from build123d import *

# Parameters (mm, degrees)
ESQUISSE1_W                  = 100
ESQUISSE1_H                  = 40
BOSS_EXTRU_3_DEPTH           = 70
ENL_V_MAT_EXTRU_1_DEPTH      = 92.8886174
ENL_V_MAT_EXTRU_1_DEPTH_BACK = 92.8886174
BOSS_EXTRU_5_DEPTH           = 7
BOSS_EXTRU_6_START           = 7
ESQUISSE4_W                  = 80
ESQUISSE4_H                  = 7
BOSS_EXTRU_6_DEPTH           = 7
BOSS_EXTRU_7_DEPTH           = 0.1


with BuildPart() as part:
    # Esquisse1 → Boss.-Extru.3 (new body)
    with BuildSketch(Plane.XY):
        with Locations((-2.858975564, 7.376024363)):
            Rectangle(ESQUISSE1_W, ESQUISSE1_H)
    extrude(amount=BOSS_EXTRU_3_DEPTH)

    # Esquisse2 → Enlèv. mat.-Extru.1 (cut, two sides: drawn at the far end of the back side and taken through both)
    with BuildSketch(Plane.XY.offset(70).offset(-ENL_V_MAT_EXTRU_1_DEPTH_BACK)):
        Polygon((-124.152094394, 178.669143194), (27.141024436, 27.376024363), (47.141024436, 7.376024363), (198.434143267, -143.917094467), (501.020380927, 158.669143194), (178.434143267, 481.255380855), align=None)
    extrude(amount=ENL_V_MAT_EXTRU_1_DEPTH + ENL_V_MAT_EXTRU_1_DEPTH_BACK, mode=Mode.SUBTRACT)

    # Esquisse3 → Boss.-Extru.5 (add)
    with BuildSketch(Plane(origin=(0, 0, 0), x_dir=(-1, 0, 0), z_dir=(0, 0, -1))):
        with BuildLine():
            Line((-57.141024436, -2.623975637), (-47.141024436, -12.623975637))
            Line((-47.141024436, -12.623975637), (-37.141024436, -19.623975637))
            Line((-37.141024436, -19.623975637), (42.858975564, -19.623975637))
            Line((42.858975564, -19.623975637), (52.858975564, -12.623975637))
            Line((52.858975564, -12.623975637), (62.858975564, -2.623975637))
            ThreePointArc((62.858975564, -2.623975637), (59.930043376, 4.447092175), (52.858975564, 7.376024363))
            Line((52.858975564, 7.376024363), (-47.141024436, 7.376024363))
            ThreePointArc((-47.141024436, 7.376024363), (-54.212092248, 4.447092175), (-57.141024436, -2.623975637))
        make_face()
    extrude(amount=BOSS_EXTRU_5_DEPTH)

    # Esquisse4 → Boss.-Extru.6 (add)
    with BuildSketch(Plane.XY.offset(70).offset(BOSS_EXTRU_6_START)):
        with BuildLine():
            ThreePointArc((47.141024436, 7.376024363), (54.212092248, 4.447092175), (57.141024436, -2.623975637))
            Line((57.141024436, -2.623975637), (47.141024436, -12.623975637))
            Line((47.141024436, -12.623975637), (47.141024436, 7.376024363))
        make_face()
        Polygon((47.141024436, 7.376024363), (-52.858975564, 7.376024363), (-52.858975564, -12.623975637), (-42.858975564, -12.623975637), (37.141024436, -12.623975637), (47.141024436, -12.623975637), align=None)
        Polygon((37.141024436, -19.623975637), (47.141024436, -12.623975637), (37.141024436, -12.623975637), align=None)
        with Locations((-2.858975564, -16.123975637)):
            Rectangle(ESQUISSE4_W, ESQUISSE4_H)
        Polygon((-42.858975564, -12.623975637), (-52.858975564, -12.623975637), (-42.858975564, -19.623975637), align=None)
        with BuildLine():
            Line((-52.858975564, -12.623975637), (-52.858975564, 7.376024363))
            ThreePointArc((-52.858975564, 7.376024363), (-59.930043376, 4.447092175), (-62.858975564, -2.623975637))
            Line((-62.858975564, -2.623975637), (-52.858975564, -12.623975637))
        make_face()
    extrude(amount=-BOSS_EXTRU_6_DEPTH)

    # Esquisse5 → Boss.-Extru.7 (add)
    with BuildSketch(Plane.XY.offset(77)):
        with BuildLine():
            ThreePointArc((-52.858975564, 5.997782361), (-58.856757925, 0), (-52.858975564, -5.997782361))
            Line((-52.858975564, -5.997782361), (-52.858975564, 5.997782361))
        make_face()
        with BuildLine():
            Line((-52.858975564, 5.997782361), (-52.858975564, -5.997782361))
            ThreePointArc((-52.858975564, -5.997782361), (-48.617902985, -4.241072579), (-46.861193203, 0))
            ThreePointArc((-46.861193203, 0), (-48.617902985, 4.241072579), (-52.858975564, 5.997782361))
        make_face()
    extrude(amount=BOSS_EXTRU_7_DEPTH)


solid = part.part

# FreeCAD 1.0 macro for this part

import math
import FreeCAD as App
import Part
import Sketcher

V = App.Vector
Q = App.Units.Quantity

doc = App.newDocument("Part")
body = doc.addObject("PartDesign::Body", "Body")

sketch1 = body.newObject("Sketcher::SketchObject", "Sketch")
sketch1.AttachmentSupport = (doc.getObject("XY_Plane"), [""])
sketch1.MapMode = "FlatFace"
sketch1.addGeometry([
    Part.LineSegment(V(-53, 27, 0), V(-53, -13, 0)),
    Part.LineSegment(V(-53, -13, 0), V(47, -13, 0)),
    Part.LineSegment(V(47, -13, 0), V(47, 27, 0)),
    Part.LineSegment(V(47, 27, 0), V(-53, 27, 0)),
], False)
sketch1.addConstraint([
    Sketcher.Constraint("Coincident", 0, 2, 1, 1),
    Sketcher.Constraint("Coincident", 1, 2, 2, 1),
    Sketcher.Constraint("Coincident", 2, 2, 3, 1),
    Sketcher.Constraint("Coincident", 3, 2, 0, 1),
    Sketcher.Constraint("Vertical", 0),
    Sketcher.Constraint("Horizontal", 1),
    Sketcher.Constraint("Vertical", 2),
    Sketcher.Constraint("Horizontal", 3),
    Sketcher.Constraint("DistanceX", 1, 1, 1, 2, 100.0),
    Sketcher.Constraint("DistanceY", 0, 2, 0, 1, 40.0),
    Sketcher.Constraint("DistanceX", 0, 2, -1, 1, 52.858976),
    Sketcher.Constraint("DistanceY", 0, 2, -1, 1, 12.623976),
])
pad1 = body.newObject("PartDesign::Pad", "Pad")
pad1.Profile = sketch1
pad1.Length = 70

sketch2 = body.newObject("Sketcher::SketchObject", "Sketch001")
sketch2.AttachmentSupport = (doc.getObject("XY_Plane"), [""])
sketch2.MapMode = "FlatFace"
sketch2.AttachmentOffset = App.Placement(V(0, 0, 70), App.Rotation())
sketch2.addGeometry([
    Part.LineSegment(V(-124, 179, 0), V(27, 27, 0)),
    Part.LineSegment(V(27, 27, 0), V(47, 7, 0)),
    Part.LineSegment(V(47, 7, 0), V(198, -144, 0)),
    Part.LineSegment(V(198, -144, 0), V(501, 159, 0)),
    Part.LineSegment(V(501, 159, 0), V(178, 481, 0)),
    Part.LineSegment(V(178, 481, 0), V(-124, 179, 0)),
], False)
sketch2.addConstraint([
    Sketcher.Constraint("Coincident", 0, 2, 1, 1),
    Sketcher.Constraint("Coincident", 1, 2, 2, 1),
    Sketcher.Constraint("Coincident", 2, 2, 3, 1),
    Sketcher.Constraint("Coincident", 3, 2, 4, 1),
    Sketcher.Constraint("Coincident", 4, 2, 5, 1),
    Sketcher.Constraint("Coincident", 5, 2, 0, 1),
    Sketcher.Constraint("Parallel", 0, 1),
    Sketcher.Constraint("Parallel", 1, 2),
    Sketcher.Constraint("Perpendicular", 2, 3),
    Sketcher.Constraint("Perpendicular", 3, 4),
    Sketcher.Constraint("Perpendicular", 4, 5),
    Sketcher.Constraint("Equal", 0, 2),
    Sketcher.Constraint("Angle", 0, Q("-45 deg")),
    Sketcher.Constraint("DistanceX", 0, 2, 1, 2, 20.0),
    Sketcher.Constraint("DistanceX", 4, 2, 2, 2, 20.0),
    Sketcher.Constraint("Distance", 0, 213.960781),
    Sketcher.Constraint("DistanceX", -1, 1, 3, 2, 501.020381),
    Sketcher.Constraint("DistanceY", -1, 1, 4, 2, 481.255381),
])
pocket1 = body.newObject("PartDesign::Pocket", "Pocket")
pocket1.Profile = sketch2
pocket1.Type = "ThroughAll"
pocket1.Midplane = True

sketch3 = body.newObject("Sketcher::SketchObject", "Sketch002")
sketch3.AttachmentSupport = (doc.getObject("XY_Plane"), [""])
sketch3.MapMode = "FlatFace"
sketch3.addGeometry([
    Part.LineSegment(V(57, -3, 0), V(47, -13, 0)),
    Part.LineSegment(V(47, -13, 0), V(37, -20, 0)),
    Part.LineSegment(V(37, -20, 0), V(-43, -20, 0)),
    Part.LineSegment(V(-43, -20, 0), V(-53, -13, 0)),
    Part.LineSegment(V(-53, -13, 0), V(-63, -3, 0)),
    Part.ArcOfCircle(Part.Circle(V(-53, -3, 0), V(0, 0, 1), 10), math.radians(90), math.radians(180)),
    Part.LineSegment(V(-53, 7, 0), V(47, 7, 0)),
    Part.ArcOfCircle(Part.Circle(V(47, -3, 0), V(0, 0, 1), 10), math.radians(0), math.radians(90)),
], False)
sketch3.addConstraint([
    Sketcher.Constraint("Coincident", 0, 2, 1, 1),
    Sketcher.Constraint("Coincident", 1, 2, 2, 1),
    Sketcher.Constraint("Coincident", 2, 2, 3, 1),
    Sketcher.Constraint("Coincident", 3, 2, 4, 1),
    Sketcher.Constraint("Coincident", 4, 2, 5, 2),
    Sketcher.Constraint("Tangent", 5, 1, 6, 1),
    Sketcher.Constraint("Tangent", 6, 2, 7, 2),
    Sketcher.Constraint("Coincident", 7, 1, 0, 1),
    Sketcher.Constraint("Horizontal", 2),
    Sketcher.Constraint("Horizontal", 6),
    Sketcher.Constraint("Equal", 5, 7),
    Sketcher.Constraint("Perpendicular", 0, 4),
    Sketcher.Constraint("Horizontal", 0, 2, 3, 2),
    Sketcher.Constraint("Horizontal", 7, 3, 4, 2),
    Sketcher.Constraint("Horizontal", 4, 2, 7, 1),
    Sketcher.Constraint("Vertical", 7, 3, 0, 2),
    Sketcher.Constraint("Vertical", 5, 3, 3, 2),
    Sketcher.Constraint("Equal", 1, 3),
    Sketcher.Constraint("Radius", 5, 10.0),
    Sketcher.Constraint("DistanceX", 2, 2, 2, 1, 80.0),
    Sketcher.Constraint("DistanceX", 6, 1, 6, 2, 100.0),
    Sketcher.Constraint("DistanceY", 1, 2, 0, 2, 7.0),
    Sketcher.Constraint("DistanceX", 5, 3, -1, 1, 52.858976),
    Sketcher.Constraint("DistanceY", 5, 3, -1, 1, 2.623976),
])
pad2 = body.newObject("PartDesign::Pad", "Pad001")
pad2.Profile = sketch3
pad2.Length = 7
pad2.Reversed = True

sketch4 = body.newObject("Sketcher::SketchObject", "Sketch003")
sketch4.AttachmentSupport = (doc.getObject("XY_Plane"), [""])
sketch4.MapMode = "FlatFace"
sketch4.AttachmentOffset = App.Placement(V(0, 0, 77), App.Rotation())
sketch4.addGeometry([
    Part.ArcOfCircle(Part.Circle(V(47, -3, 0), V(0, 0, 1), 10), math.radians(0), math.radians(90)),
    Part.LineSegment(V(47, 7, 0), V(-53, 7, 0)),
    Part.ArcOfCircle(Part.Circle(V(-53, -3, 0), V(0, 0, 1), 10), math.radians(90), math.radians(180)),
    Part.LineSegment(V(-63, -3, 0), V(-53, -13, 0)),
    Part.LineSegment(V(-53, -13, 0), V(-43, -20, 0)),
    Part.LineSegment(V(-43, -20, 0), V(37, -20, 0)),
    Part.LineSegment(V(37, -20, 0), V(47, -13, 0)),
    Part.LineSegment(V(47, -13, 0), V(57, -3, 0)),
], False)
sketch4.addConstraint([
    Sketcher.Constraint("Tangent", 0, 2, 1, 1),
    Sketcher.Constraint("Tangent", 1, 2, 2, 1),
    Sketcher.Constraint("Coincident", 2, 2, 3, 1),
    Sketcher.Constraint("Coincident", 3, 2, 4, 1),
    Sketcher.Constraint("Coincident", 4, 2, 5, 1),
    Sketcher.Constraint("Coincident", 5, 2, 6, 1),
    Sketcher.Constraint("Coincident", 6, 2, 7, 1),
    Sketcher.Constraint("Coincident", 7, 2, 0, 1),
    Sketcher.Constraint("Horizontal", 1),
    Sketcher.Constraint("Horizontal", 5),
    Sketcher.Constraint("Equal", 0, 2),
    Sketcher.Constraint("Perpendicular", 3, 7),
    Sketcher.Constraint("Horizontal", 0, 3, 2, 2),
    Sketcher.Constraint("Horizontal", 3, 2, 6, 2),
    Sketcher.Constraint("Horizontal", 2, 2, 7, 2),
    Sketcher.Constraint("Vertical", 1, 2, 3, 2),
    Sketcher.Constraint("Vertical", 0, 2, 6, 2),
    Sketcher.Constraint("Equal", 4, 6),
    Sketcher.Constraint("Radius", 0, 10.0),
    Sketcher.Constraint("DistanceX", 1, 2, 1, 1, 100.0),
    Sketcher.Constraint("DistanceX", 5, 1, 5, 2, 80.0),
    Sketcher.Constraint("DistanceY", 4, 2, 3, 2, 7.0),
    Sketcher.Constraint("DistanceX", -1, 1, 0, 3, 47.141024),
    Sketcher.Constraint("DistanceY", 0, 3, -1, 1, 2.623976),
])
pad3 = body.newObject("PartDesign::Pad", "Pad002")
pad3.Profile = sketch4
pad3.Length = 7
pad3.Reversed = True

sketch5 = body.newObject("Sketcher::SketchObject", "Sketch004")
sketch5.AttachmentSupport = (doc.getObject("XY_Plane"), [""])
sketch5.MapMode = "FlatFace"
sketch5.AttachmentOffset = App.Placement(V(0, 0, 77), App.Rotation())
sketch5.addGeometry([
    Part.ArcOfCircle(Part.Circle(V(-53, 0, 0), V(0, 0, 1), 6), math.radians(90), math.radians(270)),
    Part.ArcOfCircle(Part.Circle(V(-53, 0, 0), V(0, 0, 1), 6), math.radians(-90), math.radians(0)),
    Part.ArcOfCircle(Part.Circle(V(-53, 0, 0), V(0, 0, 1), 6), math.radians(0), math.radians(90)),
], False)
sketch5.addConstraint([
    Sketcher.Constraint("Tangent", 0, 2, 1, 1),
    Sketcher.Constraint("Tangent", 1, 2, 2, 1),
    Sketcher.Constraint("Tangent", 2, 2, 0, 1),
    Sketcher.Constraint("Symmetric", 0, 2, 2, 2, -1),
    Sketcher.Constraint("PointOnObject", 1, 2, -1),
    Sketcher.Constraint("Vertical", 2, 3, 0, 2),
    Sketcher.Constraint("Radius", 0, 5.997782),
    Sketcher.Constraint("DistanceX", 0, 3, -1, 1, 52.858976),
])
pad4 = body.newObject("PartDesign::Pad", "Pad003")
pad4.Profile = sketch5
pad4.Length = 0.1

doc.recompute()
